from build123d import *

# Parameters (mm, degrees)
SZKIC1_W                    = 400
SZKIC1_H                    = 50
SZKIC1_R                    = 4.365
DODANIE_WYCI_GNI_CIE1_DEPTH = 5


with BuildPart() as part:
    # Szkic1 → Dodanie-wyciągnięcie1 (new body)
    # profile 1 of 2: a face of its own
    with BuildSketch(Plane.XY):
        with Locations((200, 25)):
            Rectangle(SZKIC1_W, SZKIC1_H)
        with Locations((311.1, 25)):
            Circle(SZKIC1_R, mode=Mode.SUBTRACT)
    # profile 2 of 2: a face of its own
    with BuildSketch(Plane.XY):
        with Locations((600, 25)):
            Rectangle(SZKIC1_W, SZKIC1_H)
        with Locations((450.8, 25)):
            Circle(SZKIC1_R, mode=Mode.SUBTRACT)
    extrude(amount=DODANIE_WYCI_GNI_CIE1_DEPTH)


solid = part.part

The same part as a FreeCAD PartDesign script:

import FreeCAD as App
import Part
import Sketcher

doc = App.newDocument("Part")
params = doc.addObject("Spreadsheet::Sheet", "Params")
for row, (alias, value) in enumerate([
    ("sketch1_diameter", "8.73 mm"),
    ("sketch1_width", "800 mm"),
    ("sketch1_height", "50 mm"),
    ("pad1_length", "5 mm"),
], start=1):
    params.set(f"A{row}", alias)
    params.set(f"B{row}", "=" + value)
    params.setAlias(f"B{row}", alias)

body = doc.addObject("PartDesign::Body", "Body")

sketch1 = body.newObject("Sketcher::SketchObject", "Sketch")
sketch1.AttachmentSupport = (doc.getObject("XY_Plane"), [""])
sketch1.MapMode = "FlatFace"
sketch1.addGeometry(Part.LineSegment(App.Vector(0, 50, 0), App.Vector(0, 0, 0)), False)
sketch1.addGeometry(Part.LineSegment(App.Vector(0, 0, 0), App.Vector(800, 0, 0)), False)
sketch1.addGeometry(Part.LineSegment(App.Vector(800, 0, 0), App.Vector(800, 50, 0)), False)
sketch1.addGeometry(Part.LineSegment(App.Vector(800, 50, 0), App.Vector(0, 50, 0)), False)
sketch1.addGeometry(Part.Circle(App.Vector(311.1, 25, 0), App.Vector(0, 0, 1), 4.4), False)
sketch1.addGeometry(Part.Circle(App.Vector(450.8, 25, 0), App.Vector(0, 0, 1), 4.4), False)
sketch1.addConstraint(Sketcher.Constraint("Coincident", 0, 2, 1, 1))
sketch1.addConstraint(Sketcher.Constraint("Coincident", 1, 2, 2, 1))
sketch1.addConstraint(Sketcher.Constraint("Coincident", 2, 2, 3, 1))
sketch1.addConstraint(Sketcher.Constraint("Coincident", 3, 2, 0, 1))
sketch1.addConstraint(Sketcher.Constraint("Vertical", 0))
sketch1.addConstraint(Sketcher.Constraint("Horizontal", 1))
sketch1.addConstraint(Sketcher.Constraint("Vertical", 2))
sketch1.addConstraint(Sketcher.Constraint("Horizontal", 3))
sketch1.addConstraint(Sketcher.Constraint("Coincident", 0, 2, -1, 1))
sketch1.addConstraint(Sketcher.Constraint("Equal", 4, 5))
sketch1.addConstraint(Sketcher.Constraint("Horizontal", 4, 3, 5, 3))
sketch1.addConstraint(Sketcher.Constraint("Diameter", 4, 8.73))
sketch1.addConstraint(Sketcher.Constraint("DistanceX", 1, 1, 1, 2, 800.0))
sketch1.addConstraint(Sketcher.Constraint("DistanceY", 0, 2, 0, 1, 50.0))
sketch1.addConstraint(Sketcher.Constraint("DistanceY", -1, 1, 4, 3, 25.0))
sketch1.addConstraint(Sketcher.Constraint("DistanceX", -1, 1, 4, 3, 311.1))
sketch1.addConstraint(Sketcher.Constraint("DistanceX", -1, 1, 5, 3, 450.8))
sketch1.setExpression("Constraints[11]", "Params.sketch1_diameter")
sketch1.setExpression("Constraints[12]", "Params.sketch1_width")
sketch1.setExpression("Constraints[13]", "Params.sketch1_height")
pad1 = body.newObject("PartDesign::Pad", "Pad")
pad1.Profile = sketch1
pad1.setExpression("Length", "Params.pad1_length")

doc.recompute()
